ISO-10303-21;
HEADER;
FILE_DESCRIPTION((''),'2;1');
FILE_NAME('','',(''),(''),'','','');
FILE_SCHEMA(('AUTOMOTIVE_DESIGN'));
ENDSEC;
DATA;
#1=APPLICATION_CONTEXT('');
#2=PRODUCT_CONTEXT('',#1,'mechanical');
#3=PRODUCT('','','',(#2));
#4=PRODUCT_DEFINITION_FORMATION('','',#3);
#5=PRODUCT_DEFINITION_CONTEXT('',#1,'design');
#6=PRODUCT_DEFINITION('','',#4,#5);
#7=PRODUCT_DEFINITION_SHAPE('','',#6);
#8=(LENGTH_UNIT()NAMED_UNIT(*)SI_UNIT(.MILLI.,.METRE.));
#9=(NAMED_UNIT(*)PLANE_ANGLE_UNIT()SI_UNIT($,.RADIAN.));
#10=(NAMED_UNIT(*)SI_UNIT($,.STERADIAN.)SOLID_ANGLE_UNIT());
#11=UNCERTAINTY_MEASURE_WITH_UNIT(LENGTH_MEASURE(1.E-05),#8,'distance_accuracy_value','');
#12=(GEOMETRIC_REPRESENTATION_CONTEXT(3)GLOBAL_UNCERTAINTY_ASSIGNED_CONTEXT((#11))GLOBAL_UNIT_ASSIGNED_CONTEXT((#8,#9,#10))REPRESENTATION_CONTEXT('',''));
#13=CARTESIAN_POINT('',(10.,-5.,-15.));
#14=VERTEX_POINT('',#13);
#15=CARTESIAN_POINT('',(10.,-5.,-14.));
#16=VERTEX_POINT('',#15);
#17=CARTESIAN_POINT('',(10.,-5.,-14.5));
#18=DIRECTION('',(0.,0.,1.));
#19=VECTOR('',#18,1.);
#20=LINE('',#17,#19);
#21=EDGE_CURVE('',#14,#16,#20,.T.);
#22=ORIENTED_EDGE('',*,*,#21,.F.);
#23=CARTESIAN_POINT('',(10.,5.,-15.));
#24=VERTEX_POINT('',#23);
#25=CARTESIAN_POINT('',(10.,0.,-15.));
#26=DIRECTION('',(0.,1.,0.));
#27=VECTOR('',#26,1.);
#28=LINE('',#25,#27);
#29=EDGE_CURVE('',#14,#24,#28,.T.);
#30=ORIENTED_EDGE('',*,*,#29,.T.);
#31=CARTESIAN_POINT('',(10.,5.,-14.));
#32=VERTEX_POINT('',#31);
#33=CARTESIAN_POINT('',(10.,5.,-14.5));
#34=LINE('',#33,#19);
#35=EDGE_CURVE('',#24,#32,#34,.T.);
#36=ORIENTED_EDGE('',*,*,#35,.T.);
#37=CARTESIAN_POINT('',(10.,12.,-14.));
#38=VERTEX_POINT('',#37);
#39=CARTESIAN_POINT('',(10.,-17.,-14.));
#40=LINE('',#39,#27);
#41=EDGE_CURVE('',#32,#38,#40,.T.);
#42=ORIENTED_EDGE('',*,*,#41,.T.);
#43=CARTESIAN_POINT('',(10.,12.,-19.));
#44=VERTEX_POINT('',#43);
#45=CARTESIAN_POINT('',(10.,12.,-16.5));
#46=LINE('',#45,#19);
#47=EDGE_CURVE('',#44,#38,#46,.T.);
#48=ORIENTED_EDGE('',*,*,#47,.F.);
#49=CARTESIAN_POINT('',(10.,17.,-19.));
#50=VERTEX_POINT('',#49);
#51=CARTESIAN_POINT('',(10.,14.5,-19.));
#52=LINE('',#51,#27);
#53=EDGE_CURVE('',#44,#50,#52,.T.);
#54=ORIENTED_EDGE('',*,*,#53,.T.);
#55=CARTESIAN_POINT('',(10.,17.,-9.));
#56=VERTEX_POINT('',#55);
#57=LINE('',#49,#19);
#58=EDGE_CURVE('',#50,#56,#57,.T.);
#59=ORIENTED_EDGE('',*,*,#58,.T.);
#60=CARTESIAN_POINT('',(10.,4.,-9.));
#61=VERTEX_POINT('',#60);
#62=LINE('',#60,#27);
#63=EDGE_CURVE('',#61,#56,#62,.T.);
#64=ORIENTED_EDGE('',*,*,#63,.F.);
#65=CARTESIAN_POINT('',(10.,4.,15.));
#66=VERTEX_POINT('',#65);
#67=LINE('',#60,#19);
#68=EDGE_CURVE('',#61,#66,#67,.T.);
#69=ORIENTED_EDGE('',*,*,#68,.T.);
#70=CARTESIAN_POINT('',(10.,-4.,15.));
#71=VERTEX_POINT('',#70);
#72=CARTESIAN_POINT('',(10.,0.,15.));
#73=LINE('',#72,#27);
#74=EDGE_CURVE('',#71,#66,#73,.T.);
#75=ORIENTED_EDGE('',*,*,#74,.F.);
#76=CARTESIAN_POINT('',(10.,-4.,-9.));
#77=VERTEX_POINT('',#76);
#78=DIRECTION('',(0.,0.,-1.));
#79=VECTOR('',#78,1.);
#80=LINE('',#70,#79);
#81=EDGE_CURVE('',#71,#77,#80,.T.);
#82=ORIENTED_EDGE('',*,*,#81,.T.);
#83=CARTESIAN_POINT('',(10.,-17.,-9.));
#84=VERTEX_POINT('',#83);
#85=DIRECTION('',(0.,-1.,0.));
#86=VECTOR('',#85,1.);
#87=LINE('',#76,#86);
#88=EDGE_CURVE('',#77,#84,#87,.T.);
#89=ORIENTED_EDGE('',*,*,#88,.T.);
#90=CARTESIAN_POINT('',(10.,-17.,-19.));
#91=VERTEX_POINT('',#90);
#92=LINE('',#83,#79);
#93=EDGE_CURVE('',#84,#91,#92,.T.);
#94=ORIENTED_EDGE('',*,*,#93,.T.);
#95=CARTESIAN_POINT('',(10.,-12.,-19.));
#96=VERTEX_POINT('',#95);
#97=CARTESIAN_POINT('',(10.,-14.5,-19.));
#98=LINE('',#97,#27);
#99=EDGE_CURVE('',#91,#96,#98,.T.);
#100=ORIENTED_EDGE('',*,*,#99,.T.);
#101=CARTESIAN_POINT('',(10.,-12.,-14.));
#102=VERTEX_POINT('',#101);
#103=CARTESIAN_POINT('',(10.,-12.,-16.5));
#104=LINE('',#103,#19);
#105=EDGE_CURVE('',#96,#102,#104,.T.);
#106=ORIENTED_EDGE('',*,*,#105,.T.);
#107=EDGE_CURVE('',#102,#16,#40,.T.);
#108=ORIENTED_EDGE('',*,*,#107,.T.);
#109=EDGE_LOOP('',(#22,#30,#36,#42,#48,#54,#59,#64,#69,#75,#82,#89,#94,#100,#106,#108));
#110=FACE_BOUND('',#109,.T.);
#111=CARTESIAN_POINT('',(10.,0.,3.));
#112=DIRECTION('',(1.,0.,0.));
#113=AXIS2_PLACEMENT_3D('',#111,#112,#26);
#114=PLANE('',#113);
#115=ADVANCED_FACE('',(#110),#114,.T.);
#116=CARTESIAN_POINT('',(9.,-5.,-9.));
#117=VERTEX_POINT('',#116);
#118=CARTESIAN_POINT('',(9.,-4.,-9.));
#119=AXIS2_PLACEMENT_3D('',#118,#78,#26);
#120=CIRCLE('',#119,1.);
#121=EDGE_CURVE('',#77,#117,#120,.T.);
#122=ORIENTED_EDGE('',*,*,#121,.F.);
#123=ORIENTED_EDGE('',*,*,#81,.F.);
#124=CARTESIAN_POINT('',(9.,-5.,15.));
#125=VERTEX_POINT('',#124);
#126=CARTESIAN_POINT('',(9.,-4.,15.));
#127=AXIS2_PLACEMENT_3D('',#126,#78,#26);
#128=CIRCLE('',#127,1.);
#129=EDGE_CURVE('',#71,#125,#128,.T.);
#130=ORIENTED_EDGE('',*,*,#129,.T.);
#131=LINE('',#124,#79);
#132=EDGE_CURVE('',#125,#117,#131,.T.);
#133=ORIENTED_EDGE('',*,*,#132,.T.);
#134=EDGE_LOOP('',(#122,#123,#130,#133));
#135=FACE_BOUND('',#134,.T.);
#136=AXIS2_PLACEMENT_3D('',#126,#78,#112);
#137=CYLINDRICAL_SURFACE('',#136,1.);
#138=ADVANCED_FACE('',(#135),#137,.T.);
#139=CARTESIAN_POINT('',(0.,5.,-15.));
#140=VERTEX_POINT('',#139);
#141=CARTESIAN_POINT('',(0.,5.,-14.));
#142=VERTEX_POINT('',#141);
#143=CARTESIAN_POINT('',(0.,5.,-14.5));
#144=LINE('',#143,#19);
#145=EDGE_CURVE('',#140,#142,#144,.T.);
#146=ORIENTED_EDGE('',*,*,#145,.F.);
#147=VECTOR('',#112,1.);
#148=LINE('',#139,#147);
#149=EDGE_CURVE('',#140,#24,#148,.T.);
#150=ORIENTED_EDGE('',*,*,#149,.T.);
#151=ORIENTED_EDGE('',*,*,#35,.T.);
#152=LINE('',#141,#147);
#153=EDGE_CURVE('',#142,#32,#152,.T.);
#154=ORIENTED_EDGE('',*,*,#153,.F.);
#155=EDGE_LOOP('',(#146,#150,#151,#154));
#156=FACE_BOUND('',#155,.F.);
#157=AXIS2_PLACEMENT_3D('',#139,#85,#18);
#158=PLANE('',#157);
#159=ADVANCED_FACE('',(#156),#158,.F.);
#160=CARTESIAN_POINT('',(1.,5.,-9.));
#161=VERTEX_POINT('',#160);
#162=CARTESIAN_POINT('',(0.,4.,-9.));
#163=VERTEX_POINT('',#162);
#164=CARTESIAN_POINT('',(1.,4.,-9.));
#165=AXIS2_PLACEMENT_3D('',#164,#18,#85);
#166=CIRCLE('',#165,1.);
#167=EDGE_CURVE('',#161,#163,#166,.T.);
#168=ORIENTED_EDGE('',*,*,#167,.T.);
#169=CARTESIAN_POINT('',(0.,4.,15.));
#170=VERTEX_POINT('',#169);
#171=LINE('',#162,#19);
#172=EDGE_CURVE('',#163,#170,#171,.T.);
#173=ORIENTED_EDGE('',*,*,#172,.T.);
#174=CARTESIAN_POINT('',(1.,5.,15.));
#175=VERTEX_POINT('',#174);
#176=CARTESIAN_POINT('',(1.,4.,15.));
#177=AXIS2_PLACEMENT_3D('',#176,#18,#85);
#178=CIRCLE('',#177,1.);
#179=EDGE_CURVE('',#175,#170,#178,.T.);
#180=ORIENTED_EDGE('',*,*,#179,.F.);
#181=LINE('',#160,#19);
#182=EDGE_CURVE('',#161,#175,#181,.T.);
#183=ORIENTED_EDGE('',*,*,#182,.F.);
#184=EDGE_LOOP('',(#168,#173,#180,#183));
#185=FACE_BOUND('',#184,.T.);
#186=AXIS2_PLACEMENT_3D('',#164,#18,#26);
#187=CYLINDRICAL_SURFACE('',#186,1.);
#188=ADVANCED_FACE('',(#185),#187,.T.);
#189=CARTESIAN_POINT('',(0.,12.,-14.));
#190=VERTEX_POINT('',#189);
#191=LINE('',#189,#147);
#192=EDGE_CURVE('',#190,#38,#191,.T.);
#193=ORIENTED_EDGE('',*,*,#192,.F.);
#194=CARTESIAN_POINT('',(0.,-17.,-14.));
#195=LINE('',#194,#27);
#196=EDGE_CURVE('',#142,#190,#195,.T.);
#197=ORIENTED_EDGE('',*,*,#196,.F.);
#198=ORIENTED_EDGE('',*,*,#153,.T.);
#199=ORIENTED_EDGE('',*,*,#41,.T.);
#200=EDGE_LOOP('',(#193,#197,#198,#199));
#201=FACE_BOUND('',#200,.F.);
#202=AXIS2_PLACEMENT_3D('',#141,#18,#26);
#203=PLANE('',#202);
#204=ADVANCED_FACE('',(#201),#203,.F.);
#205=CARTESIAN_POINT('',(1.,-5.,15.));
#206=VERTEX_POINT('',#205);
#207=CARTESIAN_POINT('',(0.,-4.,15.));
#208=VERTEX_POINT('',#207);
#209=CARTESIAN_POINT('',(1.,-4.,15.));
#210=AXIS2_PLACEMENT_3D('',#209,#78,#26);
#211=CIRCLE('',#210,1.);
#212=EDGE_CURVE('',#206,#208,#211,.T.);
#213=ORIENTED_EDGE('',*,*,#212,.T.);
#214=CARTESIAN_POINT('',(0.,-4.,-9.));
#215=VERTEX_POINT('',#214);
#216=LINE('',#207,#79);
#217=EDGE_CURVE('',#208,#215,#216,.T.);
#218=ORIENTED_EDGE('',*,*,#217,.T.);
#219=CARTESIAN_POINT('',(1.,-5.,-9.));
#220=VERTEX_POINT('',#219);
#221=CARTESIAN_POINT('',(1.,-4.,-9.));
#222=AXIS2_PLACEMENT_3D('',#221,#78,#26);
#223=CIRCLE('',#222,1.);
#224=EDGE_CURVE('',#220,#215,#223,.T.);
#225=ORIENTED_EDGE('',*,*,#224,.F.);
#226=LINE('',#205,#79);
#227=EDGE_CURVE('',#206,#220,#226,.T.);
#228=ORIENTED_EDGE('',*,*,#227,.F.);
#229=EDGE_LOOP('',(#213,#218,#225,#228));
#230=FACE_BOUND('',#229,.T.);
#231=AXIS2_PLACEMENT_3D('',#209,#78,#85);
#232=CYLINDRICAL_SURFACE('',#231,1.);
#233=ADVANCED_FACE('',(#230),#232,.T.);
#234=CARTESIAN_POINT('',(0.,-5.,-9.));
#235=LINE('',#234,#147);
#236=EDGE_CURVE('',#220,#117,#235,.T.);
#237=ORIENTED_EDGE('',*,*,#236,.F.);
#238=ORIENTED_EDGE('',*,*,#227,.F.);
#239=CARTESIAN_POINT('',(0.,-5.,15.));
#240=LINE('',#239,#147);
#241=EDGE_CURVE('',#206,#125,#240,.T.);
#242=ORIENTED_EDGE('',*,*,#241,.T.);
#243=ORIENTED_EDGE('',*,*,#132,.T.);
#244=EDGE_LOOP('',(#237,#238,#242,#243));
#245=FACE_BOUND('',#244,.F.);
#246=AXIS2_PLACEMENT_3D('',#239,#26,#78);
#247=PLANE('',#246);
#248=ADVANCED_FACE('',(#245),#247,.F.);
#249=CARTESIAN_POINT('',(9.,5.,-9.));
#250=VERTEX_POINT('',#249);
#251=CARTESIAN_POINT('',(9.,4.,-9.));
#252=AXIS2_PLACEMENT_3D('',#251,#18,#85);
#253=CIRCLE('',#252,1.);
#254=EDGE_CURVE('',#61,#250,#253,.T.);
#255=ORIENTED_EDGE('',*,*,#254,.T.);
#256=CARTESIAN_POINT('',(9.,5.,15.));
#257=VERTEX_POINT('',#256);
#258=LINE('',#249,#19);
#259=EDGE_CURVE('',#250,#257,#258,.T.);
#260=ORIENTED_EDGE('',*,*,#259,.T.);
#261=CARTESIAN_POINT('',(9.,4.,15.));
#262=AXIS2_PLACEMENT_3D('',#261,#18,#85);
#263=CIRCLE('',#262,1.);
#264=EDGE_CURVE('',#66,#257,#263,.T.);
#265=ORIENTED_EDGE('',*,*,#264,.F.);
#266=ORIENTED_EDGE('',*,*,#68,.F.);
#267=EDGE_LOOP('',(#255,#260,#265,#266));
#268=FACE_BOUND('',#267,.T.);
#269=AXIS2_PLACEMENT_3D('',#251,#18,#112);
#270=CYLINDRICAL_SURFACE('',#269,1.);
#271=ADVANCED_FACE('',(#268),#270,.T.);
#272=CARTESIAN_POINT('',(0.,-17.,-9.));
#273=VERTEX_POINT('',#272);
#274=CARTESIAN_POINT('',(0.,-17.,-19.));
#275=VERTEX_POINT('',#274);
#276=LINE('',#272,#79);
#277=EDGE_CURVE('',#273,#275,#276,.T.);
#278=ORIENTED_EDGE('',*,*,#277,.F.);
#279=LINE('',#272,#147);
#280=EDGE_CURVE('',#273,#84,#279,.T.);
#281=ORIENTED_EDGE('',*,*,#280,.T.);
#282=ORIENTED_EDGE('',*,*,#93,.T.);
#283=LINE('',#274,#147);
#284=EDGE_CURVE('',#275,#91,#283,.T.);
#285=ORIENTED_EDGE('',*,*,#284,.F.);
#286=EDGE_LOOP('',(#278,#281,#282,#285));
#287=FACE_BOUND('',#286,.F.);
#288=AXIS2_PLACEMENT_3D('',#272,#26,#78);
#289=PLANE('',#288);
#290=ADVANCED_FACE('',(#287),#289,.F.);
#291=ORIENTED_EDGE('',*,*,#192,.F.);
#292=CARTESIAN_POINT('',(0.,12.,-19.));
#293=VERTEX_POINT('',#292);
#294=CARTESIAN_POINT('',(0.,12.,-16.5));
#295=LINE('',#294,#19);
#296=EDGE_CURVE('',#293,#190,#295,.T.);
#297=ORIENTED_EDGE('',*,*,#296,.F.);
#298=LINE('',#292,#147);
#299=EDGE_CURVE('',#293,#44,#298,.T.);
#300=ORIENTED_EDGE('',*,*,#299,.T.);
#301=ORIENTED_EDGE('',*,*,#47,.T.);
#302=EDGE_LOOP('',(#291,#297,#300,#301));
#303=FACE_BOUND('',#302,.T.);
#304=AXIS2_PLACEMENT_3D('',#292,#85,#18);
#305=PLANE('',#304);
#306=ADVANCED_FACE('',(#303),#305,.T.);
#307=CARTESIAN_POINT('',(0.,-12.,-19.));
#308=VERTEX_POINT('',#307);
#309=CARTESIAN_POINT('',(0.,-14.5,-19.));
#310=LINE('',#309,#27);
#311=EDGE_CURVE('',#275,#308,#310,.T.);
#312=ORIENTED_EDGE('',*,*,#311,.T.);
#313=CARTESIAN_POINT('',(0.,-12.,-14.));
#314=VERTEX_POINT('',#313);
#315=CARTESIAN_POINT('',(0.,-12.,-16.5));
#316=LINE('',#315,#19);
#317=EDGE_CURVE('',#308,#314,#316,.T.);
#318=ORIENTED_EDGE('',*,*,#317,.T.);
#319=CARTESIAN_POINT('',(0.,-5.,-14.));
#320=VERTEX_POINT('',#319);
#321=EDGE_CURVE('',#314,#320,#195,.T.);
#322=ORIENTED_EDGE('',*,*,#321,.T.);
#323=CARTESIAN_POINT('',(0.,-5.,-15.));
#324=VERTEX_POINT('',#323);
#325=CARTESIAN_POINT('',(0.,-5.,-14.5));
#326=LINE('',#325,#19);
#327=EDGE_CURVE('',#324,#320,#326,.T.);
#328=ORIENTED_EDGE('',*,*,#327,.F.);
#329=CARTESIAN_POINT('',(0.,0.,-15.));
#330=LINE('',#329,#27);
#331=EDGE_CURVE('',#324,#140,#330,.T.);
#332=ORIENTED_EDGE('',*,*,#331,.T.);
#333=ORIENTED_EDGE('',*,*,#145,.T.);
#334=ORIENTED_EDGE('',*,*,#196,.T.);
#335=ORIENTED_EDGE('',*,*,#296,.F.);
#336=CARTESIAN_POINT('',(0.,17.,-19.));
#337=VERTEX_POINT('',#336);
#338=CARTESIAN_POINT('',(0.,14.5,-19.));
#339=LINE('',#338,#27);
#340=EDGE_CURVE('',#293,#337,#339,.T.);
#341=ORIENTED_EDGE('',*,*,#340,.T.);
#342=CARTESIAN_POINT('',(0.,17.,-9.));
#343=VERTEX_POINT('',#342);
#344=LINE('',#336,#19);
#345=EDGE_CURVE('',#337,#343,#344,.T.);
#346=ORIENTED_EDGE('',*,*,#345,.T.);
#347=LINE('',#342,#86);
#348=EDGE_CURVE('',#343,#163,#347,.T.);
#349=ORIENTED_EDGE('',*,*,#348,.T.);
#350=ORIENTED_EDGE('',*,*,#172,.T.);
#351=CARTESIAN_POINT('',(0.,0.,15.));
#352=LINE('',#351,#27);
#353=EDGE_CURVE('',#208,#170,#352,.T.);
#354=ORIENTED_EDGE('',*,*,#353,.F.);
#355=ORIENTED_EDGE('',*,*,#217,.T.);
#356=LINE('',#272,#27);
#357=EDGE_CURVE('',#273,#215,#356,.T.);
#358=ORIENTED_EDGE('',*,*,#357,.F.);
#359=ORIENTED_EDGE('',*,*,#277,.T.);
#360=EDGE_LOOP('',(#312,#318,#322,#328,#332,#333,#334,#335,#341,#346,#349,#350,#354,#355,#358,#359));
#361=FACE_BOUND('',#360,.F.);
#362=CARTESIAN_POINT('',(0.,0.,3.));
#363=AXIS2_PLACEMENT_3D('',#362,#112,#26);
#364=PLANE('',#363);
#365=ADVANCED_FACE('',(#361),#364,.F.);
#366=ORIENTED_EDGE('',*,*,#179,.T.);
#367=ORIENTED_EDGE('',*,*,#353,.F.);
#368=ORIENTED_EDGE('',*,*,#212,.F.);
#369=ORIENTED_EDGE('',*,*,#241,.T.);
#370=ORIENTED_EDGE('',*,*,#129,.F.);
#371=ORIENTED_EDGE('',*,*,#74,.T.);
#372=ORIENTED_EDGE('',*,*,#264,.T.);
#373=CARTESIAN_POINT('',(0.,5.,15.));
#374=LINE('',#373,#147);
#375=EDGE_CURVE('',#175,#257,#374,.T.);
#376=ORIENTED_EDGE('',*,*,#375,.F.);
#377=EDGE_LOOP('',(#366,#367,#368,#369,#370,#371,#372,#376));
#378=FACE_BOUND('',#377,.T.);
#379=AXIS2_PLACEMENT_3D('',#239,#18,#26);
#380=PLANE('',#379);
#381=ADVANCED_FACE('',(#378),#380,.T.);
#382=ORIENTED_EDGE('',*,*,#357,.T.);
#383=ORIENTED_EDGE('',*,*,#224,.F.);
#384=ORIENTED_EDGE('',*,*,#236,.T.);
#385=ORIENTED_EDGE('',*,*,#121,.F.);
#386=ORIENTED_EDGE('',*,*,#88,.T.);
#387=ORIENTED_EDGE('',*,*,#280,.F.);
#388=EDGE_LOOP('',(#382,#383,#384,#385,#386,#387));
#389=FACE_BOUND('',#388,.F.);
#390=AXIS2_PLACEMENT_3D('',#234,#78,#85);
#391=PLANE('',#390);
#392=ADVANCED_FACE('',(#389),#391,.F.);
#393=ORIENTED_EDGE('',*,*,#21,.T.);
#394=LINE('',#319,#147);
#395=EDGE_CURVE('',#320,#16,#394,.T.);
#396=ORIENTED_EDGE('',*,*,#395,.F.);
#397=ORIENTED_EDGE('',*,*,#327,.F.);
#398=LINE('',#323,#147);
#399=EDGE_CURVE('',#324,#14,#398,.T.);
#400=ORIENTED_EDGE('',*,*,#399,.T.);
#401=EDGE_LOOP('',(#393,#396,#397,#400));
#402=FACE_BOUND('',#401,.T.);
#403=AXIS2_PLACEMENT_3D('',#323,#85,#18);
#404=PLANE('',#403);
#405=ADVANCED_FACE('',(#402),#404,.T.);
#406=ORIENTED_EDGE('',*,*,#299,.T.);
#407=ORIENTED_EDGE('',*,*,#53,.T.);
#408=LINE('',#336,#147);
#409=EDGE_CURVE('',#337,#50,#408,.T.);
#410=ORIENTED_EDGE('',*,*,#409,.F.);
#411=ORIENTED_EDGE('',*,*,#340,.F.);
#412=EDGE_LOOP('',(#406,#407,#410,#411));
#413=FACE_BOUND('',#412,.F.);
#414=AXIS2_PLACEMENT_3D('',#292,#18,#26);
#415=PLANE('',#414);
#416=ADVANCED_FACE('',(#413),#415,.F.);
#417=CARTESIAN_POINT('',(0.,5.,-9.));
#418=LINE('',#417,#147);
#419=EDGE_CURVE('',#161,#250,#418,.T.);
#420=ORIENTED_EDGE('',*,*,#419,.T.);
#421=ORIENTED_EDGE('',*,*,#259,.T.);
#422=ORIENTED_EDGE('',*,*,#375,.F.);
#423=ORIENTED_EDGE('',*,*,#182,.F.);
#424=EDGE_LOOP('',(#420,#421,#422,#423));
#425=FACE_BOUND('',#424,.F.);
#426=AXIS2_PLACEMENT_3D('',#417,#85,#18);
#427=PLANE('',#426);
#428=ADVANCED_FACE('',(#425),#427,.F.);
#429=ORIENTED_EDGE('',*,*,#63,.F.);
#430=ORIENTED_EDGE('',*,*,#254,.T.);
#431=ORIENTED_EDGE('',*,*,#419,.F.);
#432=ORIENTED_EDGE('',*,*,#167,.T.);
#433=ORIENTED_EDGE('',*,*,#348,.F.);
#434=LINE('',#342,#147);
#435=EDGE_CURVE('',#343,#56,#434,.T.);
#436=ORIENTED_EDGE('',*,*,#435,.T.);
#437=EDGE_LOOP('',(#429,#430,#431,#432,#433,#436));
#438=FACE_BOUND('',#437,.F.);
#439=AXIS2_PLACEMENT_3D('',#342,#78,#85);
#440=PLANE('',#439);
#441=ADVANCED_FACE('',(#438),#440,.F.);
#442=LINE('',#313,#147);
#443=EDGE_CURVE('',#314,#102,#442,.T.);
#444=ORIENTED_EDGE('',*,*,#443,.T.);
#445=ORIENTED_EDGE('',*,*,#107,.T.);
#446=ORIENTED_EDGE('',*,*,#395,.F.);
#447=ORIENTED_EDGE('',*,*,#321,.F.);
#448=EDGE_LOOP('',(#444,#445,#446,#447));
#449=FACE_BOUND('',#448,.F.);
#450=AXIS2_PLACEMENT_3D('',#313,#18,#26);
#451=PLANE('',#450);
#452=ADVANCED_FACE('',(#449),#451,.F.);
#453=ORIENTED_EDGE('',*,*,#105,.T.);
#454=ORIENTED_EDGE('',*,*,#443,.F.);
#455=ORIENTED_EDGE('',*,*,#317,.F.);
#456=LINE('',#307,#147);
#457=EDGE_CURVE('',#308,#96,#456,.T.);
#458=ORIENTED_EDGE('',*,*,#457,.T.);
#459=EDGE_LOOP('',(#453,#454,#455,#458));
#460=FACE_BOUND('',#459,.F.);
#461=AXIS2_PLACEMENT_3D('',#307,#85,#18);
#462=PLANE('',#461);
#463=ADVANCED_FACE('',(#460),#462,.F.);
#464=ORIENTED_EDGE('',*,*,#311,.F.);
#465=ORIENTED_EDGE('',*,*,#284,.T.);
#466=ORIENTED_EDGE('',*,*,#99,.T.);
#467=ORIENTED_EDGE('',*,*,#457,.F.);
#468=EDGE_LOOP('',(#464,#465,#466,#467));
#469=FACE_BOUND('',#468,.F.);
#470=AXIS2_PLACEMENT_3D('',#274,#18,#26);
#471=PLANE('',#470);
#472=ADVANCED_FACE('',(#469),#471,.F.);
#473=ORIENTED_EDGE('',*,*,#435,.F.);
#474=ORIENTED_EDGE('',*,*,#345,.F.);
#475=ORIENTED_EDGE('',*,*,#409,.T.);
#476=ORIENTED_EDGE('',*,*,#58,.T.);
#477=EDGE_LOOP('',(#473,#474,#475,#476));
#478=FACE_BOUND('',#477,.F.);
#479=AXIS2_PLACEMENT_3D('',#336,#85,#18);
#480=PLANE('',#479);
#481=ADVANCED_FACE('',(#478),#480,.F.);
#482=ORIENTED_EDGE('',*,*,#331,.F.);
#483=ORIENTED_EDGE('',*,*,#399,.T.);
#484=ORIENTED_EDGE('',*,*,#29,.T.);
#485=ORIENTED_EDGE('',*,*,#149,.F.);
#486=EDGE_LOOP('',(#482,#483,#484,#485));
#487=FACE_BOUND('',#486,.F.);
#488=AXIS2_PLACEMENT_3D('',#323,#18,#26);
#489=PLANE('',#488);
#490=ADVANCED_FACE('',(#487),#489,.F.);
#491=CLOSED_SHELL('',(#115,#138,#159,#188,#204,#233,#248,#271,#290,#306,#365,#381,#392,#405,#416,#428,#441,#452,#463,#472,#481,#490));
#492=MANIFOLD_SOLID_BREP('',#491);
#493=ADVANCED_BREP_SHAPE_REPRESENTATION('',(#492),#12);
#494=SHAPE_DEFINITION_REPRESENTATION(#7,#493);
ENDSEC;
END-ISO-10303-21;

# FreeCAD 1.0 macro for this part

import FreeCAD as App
import Part
import Sketcher


def edges_at(feature, points):
    """Names of the edges that pass closest to the given points."""
    edges = feature.Shape.Edges
    near = lambda p: min(range(len(edges)), key=lambda i: edges[i].distToShape(Part.Vertex(*p))[0])
    return sorted({f"Edge{near(p) + 1}" for p in points})


def add_polygon(sketch, points):
    """Adds a closed chain of lines whose ends are joined by coincident constraints."""
    first, n = sketch.GeometryCount, len(points)
    for a, b in zip(points, points[1:] + points[:1]):
        sketch.addGeometry(Part.LineSegment(App.Vector(*a, 0), App.Vector(*b, 0)), False)
    for i in range(n):
        sketch.addConstraint(Sketcher.Constraint("Coincident", first + i, 2, first + (i + 1) % n, 1))

doc = App.newDocument("Part")
params = doc.addObject("Spreadsheet::Sheet", "Params")
for row, (alias, value) in enumerate([
    ("sketch1_width", "12 mm"),
    ("sketch1_width2", "5 mm"),
    ("sketch1_width3", "10 mm"),
    ("sketch1_height", "24 mm"),
    ("sketch1_height2", "1 mm"),
    ("pad1_length", "10 mm"),
    ("fillet_radius", "1 mm"),
    ("fillet2_radius", "1 mm"),
    ("fillet3_radius", "1 mm"),
    ("fillet4_radius", "1 mm"),
], start=1):
    params.set(f"A{row}", alias)
    params.set(f"B{row}", "=" + value)
    params.setAlias(f"B{row}", alias)

body = doc.addObject("PartDesign::Body", "Body")

sketch1 = body.newObject("Sketcher::SketchObject", "Sketch")
sketch1.AttachmentSupport = (doc.getObject("YZ_Plane"), [""])
sketch1.MapMode = "FlatFace"
add_polygon(sketch1, [(-5, 15), (-5, -9), (-17, -9), (-17, -19), (-12, -19), (-12, -14), (-5, -14), (-5, -15), (5, -15), (5, -14), (12, -14), (12, -19), (17, -19), (17, -9), (5, -9), (5, 15)])
sketch1.addConstraint([
    Sketcher.Constraint("Vertical", 0),
    Sketcher.Constraint("Horizontal", 1),
    Sketcher.Constraint("Vertical", 2),
    Sketcher.Constraint("Horizontal", 3),
    Sketcher.Constraint("Vertical", 4),
    Sketcher.Constraint("Horizontal", 5),
    Sketcher.Constraint("Vertical", 6),
    Sketcher.Constraint("Horizontal", 7),
    Sketcher.Constraint("Vertical", 8),
    Sketcher.Constraint("Horizontal", 9),
    Sketcher.Constraint("Vertical", 10),
    Sketcher.Constraint("Horizontal", 11),
    Sketcher.Constraint("Vertical", 12),
    Sketcher.Constraint("Horizontal", 13),
    Sketcher.Constraint("Vertical", 14),
    Sketcher.Constraint("Horizontal", 15),
    Sketcher.Constraint("Symmetric", 6, 2, 14, 2, -1, 1),
    Sketcher.Constraint("Symmetric", 5, 2, 8, 2, -2),
    Sketcher.Constraint("Symmetric", 3, 2, 10, 2, -2),
    Sketcher.Constraint("Symmetric", 1, 2, 12, 2, -2),
    Sketcher.Constraint("Vertical", 0, 2, 5, 2),
    Sketcher.Constraint("Equal", 15, 2),
    Sketcher.Constraint("Equal", 11, 4),
    Sketcher.Constraint("DistanceX", 1, 2, 1, 1, 12.0),
    Sketcher.Constraint("DistanceX", 3, 1, 3, 2, 5.0),
    Sketcher.Constraint("DistanceX", 7, 1, 7, 2, 10.0),
    Sketcher.Constraint("DistanceY", 0, 2, 0, 1, 24.0),
    Sketcher.Constraint("DistanceY", 6, 2, 6, 1, 1.0),
])
sketch1.setExpression("Constraints[39]", "Params.sketch1_width")
sketch1.setExpression("Constraints[40]", "Params.sketch1_width2")
sketch1.setExpression("Constraints[41]", "Params.sketch1_width3")
sketch1.setExpression("Constraints[42]", "Params.sketch1_height")
sketch1.setExpression("Constraints[43]", "Params.sketch1_height2")
pad1 = body.newObject("PartDesign::Pad", "Pad")
pad1.Profile = sketch1
pad1.setExpression("Length", "Params.pad1_length")
doc.recompute()

fillet = body.newObject("PartDesign::Fillet", "Fillet")
fillet.Base = (pad1, edges_at(pad1, [(0, 5, 3)]))
fillet.setExpression("Radius", "Params.fillet_radius")
doc.recompute()

fillet2 = body.newObject("PartDesign::Fillet", "Fillet001")
fillet2.Base = (fillet, edges_at(fillet, [(10, 5, 3)]))
fillet2.setExpression("Radius", "Params.fillet2_radius")
doc.recompute()

fillet3 = body.newObject("PartDesign::Fillet", "Fillet002")
fillet3.Base = (fillet2, edges_at(fillet2, [(0, -5, 3)]))
fillet3.setExpression("Radius", "Params.fillet3_radius")
doc.recompute()

fillet4 = body.newObject("PartDesign::Fillet", "Fillet003")
fillet4.Base = (fillet3, edges_at(fillet3, [(10, -5, 3)]))
fillet4.setExpression("Radius", "Params.fillet4_radius")

doc.recompute()
